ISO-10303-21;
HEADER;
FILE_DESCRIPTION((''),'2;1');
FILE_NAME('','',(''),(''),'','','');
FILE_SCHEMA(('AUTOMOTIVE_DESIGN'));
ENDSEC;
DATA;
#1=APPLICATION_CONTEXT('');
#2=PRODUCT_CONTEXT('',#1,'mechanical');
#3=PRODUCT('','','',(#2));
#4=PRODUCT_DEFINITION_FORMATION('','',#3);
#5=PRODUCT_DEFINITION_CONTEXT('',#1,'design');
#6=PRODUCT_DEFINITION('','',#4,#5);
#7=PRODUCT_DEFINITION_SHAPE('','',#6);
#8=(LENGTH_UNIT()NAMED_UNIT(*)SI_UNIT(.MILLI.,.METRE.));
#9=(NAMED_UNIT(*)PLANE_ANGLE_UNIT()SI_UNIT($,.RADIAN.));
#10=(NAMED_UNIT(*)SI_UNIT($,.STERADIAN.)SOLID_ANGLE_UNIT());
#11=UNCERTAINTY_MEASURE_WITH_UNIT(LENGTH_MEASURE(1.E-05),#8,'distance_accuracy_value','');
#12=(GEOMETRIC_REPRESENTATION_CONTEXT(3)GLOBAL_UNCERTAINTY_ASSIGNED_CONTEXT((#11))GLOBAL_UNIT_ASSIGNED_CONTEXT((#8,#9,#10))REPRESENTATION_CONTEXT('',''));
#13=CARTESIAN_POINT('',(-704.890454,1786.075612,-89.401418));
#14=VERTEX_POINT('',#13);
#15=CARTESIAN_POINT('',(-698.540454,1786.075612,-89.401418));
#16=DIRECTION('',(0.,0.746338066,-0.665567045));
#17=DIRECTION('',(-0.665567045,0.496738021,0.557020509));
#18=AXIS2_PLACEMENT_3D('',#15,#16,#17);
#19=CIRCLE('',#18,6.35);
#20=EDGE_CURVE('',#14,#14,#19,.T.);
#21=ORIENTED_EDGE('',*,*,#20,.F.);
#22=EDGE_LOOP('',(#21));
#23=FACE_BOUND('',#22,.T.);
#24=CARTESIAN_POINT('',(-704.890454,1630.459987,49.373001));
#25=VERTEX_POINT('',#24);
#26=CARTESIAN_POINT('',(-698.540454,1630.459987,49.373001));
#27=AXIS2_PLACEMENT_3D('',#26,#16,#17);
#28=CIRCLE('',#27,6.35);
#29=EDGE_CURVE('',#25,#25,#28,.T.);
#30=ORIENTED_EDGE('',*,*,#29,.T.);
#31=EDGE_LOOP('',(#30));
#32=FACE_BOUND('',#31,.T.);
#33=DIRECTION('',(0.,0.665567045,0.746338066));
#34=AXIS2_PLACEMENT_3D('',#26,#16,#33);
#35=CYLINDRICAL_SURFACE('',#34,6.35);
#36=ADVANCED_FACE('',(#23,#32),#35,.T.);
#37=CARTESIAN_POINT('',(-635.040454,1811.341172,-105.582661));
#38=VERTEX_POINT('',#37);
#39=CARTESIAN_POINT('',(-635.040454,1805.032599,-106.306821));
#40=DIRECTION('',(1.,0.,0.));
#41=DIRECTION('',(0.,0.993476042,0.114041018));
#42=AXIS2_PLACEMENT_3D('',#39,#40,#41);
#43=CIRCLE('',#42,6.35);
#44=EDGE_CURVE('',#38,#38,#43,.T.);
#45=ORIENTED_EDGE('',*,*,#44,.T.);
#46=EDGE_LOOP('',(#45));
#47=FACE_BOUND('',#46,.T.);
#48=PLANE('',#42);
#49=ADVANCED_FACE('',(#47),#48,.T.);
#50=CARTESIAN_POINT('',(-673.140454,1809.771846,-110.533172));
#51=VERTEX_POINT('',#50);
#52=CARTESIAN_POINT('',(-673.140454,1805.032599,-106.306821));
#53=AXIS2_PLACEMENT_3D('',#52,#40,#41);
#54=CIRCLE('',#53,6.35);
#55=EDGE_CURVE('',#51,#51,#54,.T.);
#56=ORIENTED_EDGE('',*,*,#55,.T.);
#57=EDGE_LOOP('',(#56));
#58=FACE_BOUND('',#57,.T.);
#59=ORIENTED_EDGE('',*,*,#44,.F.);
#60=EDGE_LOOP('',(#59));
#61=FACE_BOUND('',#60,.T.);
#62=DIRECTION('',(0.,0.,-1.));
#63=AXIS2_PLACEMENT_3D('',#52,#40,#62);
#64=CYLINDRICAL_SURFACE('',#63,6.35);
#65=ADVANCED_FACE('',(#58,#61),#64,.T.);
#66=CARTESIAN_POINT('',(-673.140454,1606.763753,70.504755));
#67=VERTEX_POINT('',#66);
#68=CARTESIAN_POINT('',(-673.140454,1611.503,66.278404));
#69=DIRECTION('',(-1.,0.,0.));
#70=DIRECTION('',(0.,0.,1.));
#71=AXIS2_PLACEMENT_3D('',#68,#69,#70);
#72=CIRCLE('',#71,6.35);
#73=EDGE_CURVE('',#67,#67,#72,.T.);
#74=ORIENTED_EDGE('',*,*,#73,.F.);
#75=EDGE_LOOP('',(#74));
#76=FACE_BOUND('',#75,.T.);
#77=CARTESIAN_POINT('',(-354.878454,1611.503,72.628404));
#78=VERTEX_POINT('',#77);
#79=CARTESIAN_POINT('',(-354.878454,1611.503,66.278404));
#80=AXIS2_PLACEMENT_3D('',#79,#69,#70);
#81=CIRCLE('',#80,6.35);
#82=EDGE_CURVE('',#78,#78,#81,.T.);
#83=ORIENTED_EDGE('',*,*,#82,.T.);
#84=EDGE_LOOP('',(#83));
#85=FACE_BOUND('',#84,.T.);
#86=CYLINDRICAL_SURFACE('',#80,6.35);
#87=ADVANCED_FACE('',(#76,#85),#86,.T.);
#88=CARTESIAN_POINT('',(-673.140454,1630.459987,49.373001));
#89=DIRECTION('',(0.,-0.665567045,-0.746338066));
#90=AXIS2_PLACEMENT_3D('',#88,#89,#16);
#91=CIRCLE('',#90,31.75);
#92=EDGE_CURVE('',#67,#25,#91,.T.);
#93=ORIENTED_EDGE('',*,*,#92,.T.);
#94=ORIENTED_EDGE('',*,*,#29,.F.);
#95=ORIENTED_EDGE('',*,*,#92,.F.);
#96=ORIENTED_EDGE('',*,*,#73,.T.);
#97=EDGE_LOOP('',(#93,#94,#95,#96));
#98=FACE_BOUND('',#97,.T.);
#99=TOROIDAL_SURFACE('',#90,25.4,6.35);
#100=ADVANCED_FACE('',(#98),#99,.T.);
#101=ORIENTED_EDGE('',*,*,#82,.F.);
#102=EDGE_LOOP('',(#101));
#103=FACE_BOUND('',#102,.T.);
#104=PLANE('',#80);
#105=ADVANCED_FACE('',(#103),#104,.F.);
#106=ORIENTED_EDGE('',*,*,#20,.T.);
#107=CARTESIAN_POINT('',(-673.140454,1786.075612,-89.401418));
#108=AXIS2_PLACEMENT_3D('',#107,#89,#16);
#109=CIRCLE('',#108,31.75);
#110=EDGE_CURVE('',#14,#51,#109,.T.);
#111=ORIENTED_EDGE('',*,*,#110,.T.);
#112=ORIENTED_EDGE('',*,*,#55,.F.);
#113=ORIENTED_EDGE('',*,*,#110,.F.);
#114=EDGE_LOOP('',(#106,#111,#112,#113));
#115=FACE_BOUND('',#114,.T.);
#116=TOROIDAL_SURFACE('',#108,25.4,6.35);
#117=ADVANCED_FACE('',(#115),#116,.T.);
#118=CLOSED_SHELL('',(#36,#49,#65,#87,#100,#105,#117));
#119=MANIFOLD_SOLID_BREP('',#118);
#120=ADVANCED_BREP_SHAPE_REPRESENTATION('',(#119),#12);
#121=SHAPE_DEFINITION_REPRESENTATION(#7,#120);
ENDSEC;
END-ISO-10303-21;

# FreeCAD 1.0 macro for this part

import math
import FreeCAD as App
import Part
import Sketcher

V = App.Vector
Q = App.Units.Quantity

doc = App.newDocument("Part")
body = doc.addObject("PartDesign::Body", "Body")

# Sketch on YZ plane
sketch1 = body.newObject("Sketcher::SketchObject", "Sketch")
sketch1.AttachmentSupport = (doc.getObject("YZ_Plane"), [""])
sketch1.MapMode = "FlatFace"
sketch1.AttachmentOffset = App.Placement(V(0, 0, -635.040454), App.Rotation())
sketch1.addGeometry(Part.Circle(V(1805, -106, 0), V(0, 0, 1), 6), False)
sketch1.addConstraint([
    Sketcher.Constraint("Diameter", 0, Q("0.5 in")),
    Sketcher.Constraint("DistanceX", -1, 1, 0, 3, Q("1805.032599 mm")),
    Sketcher.Constraint("DistanceY", 0, 3, -1, 1, Q("106.306821 mm")),
])

# Sketch on an angled plane
sketch2 = body.newObject("Sketcher::SketchObject", "Sketch001")
sketch2.Placement = App.Placement(V(0, 746.785782, 837.413242), App.Rotation(V(0, -0.746338066, 0.665567045), V(1, 0, 0), V(0, 0.665567045, 0.746338066), "ZXY"))
sketch2.addGeometry([
    Part.LineSegment(V(-1418, -635, 0), V(-1418, -673, 0)),  # 0
    Part.ArcOfCircle(Part.Circle(V(-1393, -673, 0), V(0, 0, 1), 25), math.radians(-180), math.radians(-90)),  # 1
    Part.LineSegment(V(-1393, -699, 0), V(-1184, -699, 0)),  # 2
    Part.ArcOfCircle(Part.Circle(V(-1184, -673, 0), V(0, 0, 1), 25), math.radians(-90), math.radians(0)),  # 3
    Part.LineSegment(V(-1159, -673, 0), V(-1159, -355, 0)),  # 4
], False)
sketch2.addConstraint([
    Sketcher.Constraint("Tangent", 0, 2, 1, 1),
    Sketcher.Constraint("Tangent", 1, 2, 2, 1),
    Sketcher.Constraint("Tangent", 2, 2, 3, 1),
    Sketcher.Constraint("Tangent", 3, 2, 4, 1),
    Sketcher.Constraint("Vertical", 0),
    Sketcher.Constraint("Horizontal", 2),
    Sketcher.Constraint("Vertical", 4),
    Sketcher.Constraint("Equal", 1, 3),
    Sketcher.Constraint("Radius", 1, Q("1 in")),
    Sketcher.Constraint("DistanceY", 0, 2, 0, 1, Q("1.5 in")),
    Sketcher.Constraint("DistanceY", 4, 1, 4, 2, Q("12.53 in")),
    Sketcher.Constraint("DistanceX", 2, 1, 2, 2, Q("208.505545 mm")),
    Sketcher.Constraint("DistanceX", 3, 3, -1, 1, Q("1184.013311 mm")),
    Sketcher.Constraint("DistanceY", 1, 3, -1, 1, Q("673.140455 mm")),
])
doc.recompute()

additivepipe = body.newObject("PartDesign::AdditivePipe", "AdditivePipe")
additivepipe.Profile = sketch1
additivepipe.Spine = (sketch2, ["Edge1", "Edge2", "Edge3", "Edge4", "Edge5"])

doc.recompute()
